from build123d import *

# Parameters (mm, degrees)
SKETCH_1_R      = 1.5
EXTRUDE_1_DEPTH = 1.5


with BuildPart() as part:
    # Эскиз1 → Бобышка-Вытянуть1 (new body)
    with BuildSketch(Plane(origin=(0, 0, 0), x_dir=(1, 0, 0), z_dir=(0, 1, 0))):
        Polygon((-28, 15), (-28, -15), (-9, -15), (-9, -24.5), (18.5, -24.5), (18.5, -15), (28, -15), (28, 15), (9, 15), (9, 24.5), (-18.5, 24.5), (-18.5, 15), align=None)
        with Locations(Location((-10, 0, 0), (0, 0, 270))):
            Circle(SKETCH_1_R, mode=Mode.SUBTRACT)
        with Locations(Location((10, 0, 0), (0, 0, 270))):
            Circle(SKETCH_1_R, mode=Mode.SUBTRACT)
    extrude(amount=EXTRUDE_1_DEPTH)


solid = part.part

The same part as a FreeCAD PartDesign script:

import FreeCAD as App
import Part
import Sketcher


def add_polygon(sketch, points):
    """Adds a closed chain of lines whose ends are joined by coincident constraints."""
    first, n = sketch.GeometryCount, len(points)
    for a, b in zip(points, points[1:] + points[:1]):
        sketch.addGeometry(Part.LineSegment(App.Vector(*a, 0), App.Vector(*b, 0)), False)
    for i in range(n):
        sketch.addConstraint(Sketcher.Constraint("Coincident", first + i, 2, first + (i + 1) % n, 1))

doc = App.newDocument("Part")
body = doc.addObject("PartDesign::Body", "Body")

# Sketch on XZ plane
sketch1 = doc.addObject("Sketcher::SketchObject", "Sketch")
body.addObject(sketch1)
sketch1.AttachmentSupport = (doc.XZ_Plane, [""])
sketch1.MapMode = "FlatFace"
add_polygon(sketch1, [(-28, -15), (-28, 15), (-9, 15), (-9, 24.5), (18.5, 24.5), (18.5, 15), (28, 15), (28, -15), (9, -15), (9, -24.5), (-18.5, -24.5), (-18.5, -15)])  # lines 0-11
sketch1.addGeometry(Part.Circle(App.Vector(-10, 0, 0), App.Vector(0, 0, 1), 1.5), False)  # 12
sketch1.addGeometry(Part.Circle(App.Vector(10, 0, 0), App.Vector(0, 0, 1), 1.5), False)  # 13
sketch1.addConstraint([
    Sketcher.Constraint("Vertical", 0),
    Sketcher.Constraint("Horizontal", 1),
    Sketcher.Constraint("Vertical", 2),
    Sketcher.Constraint("Horizontal", 3),
    Sketcher.Constraint("Vertical", 4),
    Sketcher.Constraint("Horizontal", 5),
    Sketcher.Constraint("Vertical", 6),
    Sketcher.Constraint("Horizontal", 7),
    Sketcher.Constraint("Vertical", 8),
    Sketcher.Constraint("Horizontal", 9),
    Sketcher.Constraint("Vertical", 10),
    Sketcher.Constraint("Horizontal", 11),
    Sketcher.Constraint("Equal", 12, 13),
    Sketcher.Constraint("Symmetric", 12, 3, 13, 3, -1, 1),
    Sketcher.Constraint("Symmetric", 0, 2, 6, 2, -1, 1),
    Sketcher.Constraint("Symmetric", 2, 2, 8, 2, -1, 1),
    Sketcher.Constraint("Symmetric", 4, 2, 10, 2, -1, 1),
    Sketcher.Constraint("PointOnObject", 12, 3, -1),
    Sketcher.Constraint("Horizontal", 1, 2, 4, 2),
    Sketcher.Constraint("Equal", 11, 2),
    Sketcher.Constraint("Diameter", 12, 3.0),
    Sketcher.Constraint("DistanceX", 1, 1, 1, 2, 19.0),
    Sketcher.Constraint("DistanceY", 0, 1, 0, 2, 30.0),
    Sketcher.Constraint("DistanceX", 3, 1, 3, 2, 27.5),
    Sketcher.Constraint("DistanceX", 5, 1, 5, 2, 9.5),
    Sketcher.Constraint("DistanceX", 12, 3, -1, 1, 10.0),
])
pad1 = doc.addObject("PartDesign::Pad", "Pad")
body.addObject(pad1)
pad1.Profile = sketch1
pad1.Length = 1.5
pad1.Reversed = True

doc.recompute()
